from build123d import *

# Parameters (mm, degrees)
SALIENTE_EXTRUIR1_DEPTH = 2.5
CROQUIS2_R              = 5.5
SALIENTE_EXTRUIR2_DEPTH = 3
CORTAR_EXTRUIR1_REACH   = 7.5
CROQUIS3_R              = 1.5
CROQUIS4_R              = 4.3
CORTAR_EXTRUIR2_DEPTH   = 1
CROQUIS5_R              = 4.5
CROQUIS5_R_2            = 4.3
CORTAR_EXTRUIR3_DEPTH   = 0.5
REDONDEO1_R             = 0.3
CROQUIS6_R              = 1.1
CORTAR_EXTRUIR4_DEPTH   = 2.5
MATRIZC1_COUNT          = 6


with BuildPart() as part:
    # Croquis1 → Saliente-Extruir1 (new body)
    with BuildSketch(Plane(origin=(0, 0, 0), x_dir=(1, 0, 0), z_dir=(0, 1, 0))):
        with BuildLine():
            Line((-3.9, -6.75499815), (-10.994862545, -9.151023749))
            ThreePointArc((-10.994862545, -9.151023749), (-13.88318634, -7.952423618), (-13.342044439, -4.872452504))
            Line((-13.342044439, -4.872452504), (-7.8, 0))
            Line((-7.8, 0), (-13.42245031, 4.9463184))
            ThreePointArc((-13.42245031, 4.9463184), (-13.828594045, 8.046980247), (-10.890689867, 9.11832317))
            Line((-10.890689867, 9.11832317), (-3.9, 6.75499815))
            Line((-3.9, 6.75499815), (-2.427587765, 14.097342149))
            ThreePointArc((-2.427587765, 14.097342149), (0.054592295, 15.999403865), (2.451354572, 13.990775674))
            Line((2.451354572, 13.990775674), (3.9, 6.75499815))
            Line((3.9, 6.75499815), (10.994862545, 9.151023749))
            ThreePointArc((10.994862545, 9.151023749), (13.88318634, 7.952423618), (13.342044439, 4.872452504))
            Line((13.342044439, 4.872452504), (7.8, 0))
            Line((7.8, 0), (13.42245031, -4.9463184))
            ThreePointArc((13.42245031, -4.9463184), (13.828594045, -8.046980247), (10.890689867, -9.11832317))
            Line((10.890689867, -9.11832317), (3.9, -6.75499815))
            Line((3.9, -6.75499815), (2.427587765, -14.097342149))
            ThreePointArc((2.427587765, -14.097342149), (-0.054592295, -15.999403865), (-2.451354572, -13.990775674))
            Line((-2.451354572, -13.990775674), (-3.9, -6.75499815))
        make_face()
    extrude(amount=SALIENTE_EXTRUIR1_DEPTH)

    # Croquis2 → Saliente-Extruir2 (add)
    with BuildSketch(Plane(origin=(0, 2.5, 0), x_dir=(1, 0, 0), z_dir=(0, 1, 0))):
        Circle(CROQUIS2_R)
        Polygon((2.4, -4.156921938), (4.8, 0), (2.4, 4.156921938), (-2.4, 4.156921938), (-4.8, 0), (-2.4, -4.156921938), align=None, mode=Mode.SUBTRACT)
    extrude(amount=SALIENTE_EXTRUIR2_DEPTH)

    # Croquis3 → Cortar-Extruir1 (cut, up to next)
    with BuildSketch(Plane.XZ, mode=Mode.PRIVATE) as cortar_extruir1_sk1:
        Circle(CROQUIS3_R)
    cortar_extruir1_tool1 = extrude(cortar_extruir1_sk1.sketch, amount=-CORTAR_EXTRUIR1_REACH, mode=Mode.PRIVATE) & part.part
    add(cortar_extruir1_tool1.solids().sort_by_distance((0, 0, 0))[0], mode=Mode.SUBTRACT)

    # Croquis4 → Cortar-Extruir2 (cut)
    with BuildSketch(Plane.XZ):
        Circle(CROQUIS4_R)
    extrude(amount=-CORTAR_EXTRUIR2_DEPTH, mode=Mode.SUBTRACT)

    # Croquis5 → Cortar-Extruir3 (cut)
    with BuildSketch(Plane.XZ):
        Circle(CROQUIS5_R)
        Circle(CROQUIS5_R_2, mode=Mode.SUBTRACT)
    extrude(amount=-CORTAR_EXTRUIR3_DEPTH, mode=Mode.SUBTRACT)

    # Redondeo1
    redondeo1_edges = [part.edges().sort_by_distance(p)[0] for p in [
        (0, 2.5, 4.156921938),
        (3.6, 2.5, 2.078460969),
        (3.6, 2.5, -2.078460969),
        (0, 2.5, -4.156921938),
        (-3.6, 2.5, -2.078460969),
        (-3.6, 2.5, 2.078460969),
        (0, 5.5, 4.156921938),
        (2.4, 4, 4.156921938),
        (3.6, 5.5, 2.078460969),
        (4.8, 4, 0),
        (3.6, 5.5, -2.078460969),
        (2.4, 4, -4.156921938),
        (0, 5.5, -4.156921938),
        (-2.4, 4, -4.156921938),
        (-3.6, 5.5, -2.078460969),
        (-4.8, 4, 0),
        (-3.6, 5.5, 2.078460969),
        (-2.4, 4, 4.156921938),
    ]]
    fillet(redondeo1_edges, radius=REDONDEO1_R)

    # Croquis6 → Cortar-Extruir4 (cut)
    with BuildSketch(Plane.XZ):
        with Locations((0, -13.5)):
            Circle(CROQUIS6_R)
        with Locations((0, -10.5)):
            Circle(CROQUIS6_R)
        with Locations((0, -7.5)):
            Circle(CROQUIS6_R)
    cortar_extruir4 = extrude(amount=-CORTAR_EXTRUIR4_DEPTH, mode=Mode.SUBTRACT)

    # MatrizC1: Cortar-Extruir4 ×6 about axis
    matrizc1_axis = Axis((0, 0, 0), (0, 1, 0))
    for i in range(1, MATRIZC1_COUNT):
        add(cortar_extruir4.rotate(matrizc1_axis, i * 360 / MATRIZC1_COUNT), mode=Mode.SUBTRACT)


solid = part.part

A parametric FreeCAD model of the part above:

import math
import FreeCAD as App
import Part
import Sketcher
from FreeCAD import Vector
Q = App.Units.Quantity


def edges_at(feature, points):
    """Names of the edges that pass closest to the given points."""
    edges = feature.Shape.Edges
    near = lambda p: min(range(len(edges)), key=lambda i: edges[i].distToShape(Part.Vertex(*p))[0])
    return sorted({f"Edge{near(p) + 1}" for p in points})

doc = App.newDocument("Part")
body = doc.addObject("PartDesign::Body", "Body")

sketch1 = body.newObject("Sketcher::SketchObject", "Sketch")
sketch1.AttachmentSupport = (doc.getObject("XZ_Plane"), [""])
sketch1.MapMode = "FlatFace"
sketch1.addGeometry([
    Part.LineSegment(Vector(-11, 9.2, 0), Vector(-3.9, 6.8, 0)),
    Part.LineSegment(Vector(-3.9, 6.8, 0), Vector(-2.5, 14, 0)),
    Part.ArcOfCircle(Part.Circle(Vector(0, 13.5, 0), Vector(0, 0, 1), 2.5), math.radians(14), math.radians(169)),
    Part.LineSegment(Vector(2.4, 14.1, 0), Vector(3.9, 6.8, 0)),
    Part.LineSegment(Vector(3.9, 6.8, 0), Vector(10.9, 9.1, 0)),
    Part.ArcOfCircle(Part.Circle(Vector(11.7, 6.8, 0), Vector(0, 0, 1), 2.5), math.radians(-46), math.radians(109)),
    Part.LineSegment(Vector(13.4, 4.9, 0), Vector(7.8, 0, 0)),
    Part.LineSegment(Vector(7.8, 0, 0), Vector(13.3, -4.9, 0)),
    Part.ArcOfCircle(Part.Circle(Vector(11.7, -6.8, 0), Vector(0, 0, 1), 2.5), math.radians(-106), math.radians(49)),
    Part.LineSegment(Vector(11, -9.2, 0), Vector(3.9, -6.8, 0)),
    Part.LineSegment(Vector(3.9, -6.8, 0), Vector(2.5, -14, 0)),
    Part.ArcOfCircle(Part.Circle(Vector(0, -13.5, 0), Vector(0, 0, 1), 2.5), math.radians(-166), math.radians(-11)),
    Part.LineSegment(Vector(-2.4, -14.1, 0), Vector(-3.9, -6.8, 0)),
    Part.LineSegment(Vector(-3.9, -6.8, 0), Vector(-10.9, -9.1, 0)),
    Part.ArcOfCircle(Part.Circle(Vector(-11.7, -6.8, 0), Vector(0, 0, 1), 2.5), math.radians(134), math.radians(289)),
    Part.LineSegment(Vector(-13.4, -4.9, 0), Vector(-7.8, 0, 0)),
    Part.LineSegment(Vector(-7.8, 0, 0), Vector(-13.3, 4.9, 0)),
    Part.ArcOfCircle(Part.Circle(Vector(-11.7, 6.8, 0), Vector(0, 0, 1), 2.5), math.radians(74), math.radians(229)),
], False)
sketch1.addConstraint([
    Sketcher.Constraint("Coincident", 0, 2, 1, 1),
    Sketcher.Constraint("Tangent", 1, 2, 2, 2),
    Sketcher.Constraint("Coincident", 2, 1, 3, 1),
    Sketcher.Constraint("Coincident", 3, 2, 4, 1),
    Sketcher.Constraint("Tangent", 4, 2, 5, 2),
    Sketcher.Constraint("Coincident", 5, 1, 6, 1),
    Sketcher.Constraint("Coincident", 6, 2, 7, 1),
    Sketcher.Constraint("Tangent", 7, 2, 8, 2),
    Sketcher.Constraint("Coincident", 8, 1, 9, 1),
    Sketcher.Constraint("Coincident", 9, 2, 10, 1),
    Sketcher.Constraint("Tangent", 10, 2, 11, 2),
    Sketcher.Constraint("Coincident", 11, 1, 12, 1),
    Sketcher.Constraint("Coincident", 12, 2, 13, 1),
    Sketcher.Constraint("Tangent", 13, 2, 14, 2),
    Sketcher.Constraint("Coincident", 14, 1, 15, 1),
    Sketcher.Constraint("Coincident", 15, 2, 16, 1),
    Sketcher.Constraint("Tangent", 16, 2, 17, 2),
    Sketcher.Constraint("Coincident", 17, 1, 0, 1),
    Sketcher.Constraint("Equal", 2, 5),
    Sketcher.Constraint("Equal", 5, 8),
    Sketcher.Constraint("Equal", 8, 11),
    Sketcher.Constraint("Equal", 11, 14),
    Sketcher.Constraint("Equal", 14, 17),
    Sketcher.Constraint("Symmetric", 2, 3, 11, 3, -1, 1),
    Sketcher.Constraint("Symmetric", 5, 3, 14, 3, -1, 1),
    Sketcher.Constraint("Symmetric", 8, 3, 17, 3, -1, 1),
    Sketcher.Constraint("Symmetric", 0, 2, 9, 2, -1, 1),
    Sketcher.Constraint("Symmetric", 3, 2, 12, 2, -1, 1),
    Sketcher.Constraint("Symmetric", 6, 2, 15, 2, -1, 1),
    Sketcher.Constraint("Symmetric", 8, 3, 14, 3, -2),
    Sketcher.Constraint("Symmetric", 0, 2, 3, 2, -2),
    Sketcher.Constraint("PointOnObject", 2, 3, -2),
    Sketcher.Constraint("PointOnObject", 6, 2, -1),
    Sketcher.Constraint("Parallel", 0, 9),
    Sketcher.Constraint("Parallel", 3, 12),
    Sketcher.Constraint("Parallel", 6, 15),
    Sketcher.Constraint("Equal", 0, 3),
    Sketcher.Constraint("Equal", 1, 4),
    Sketcher.Constraint("Equal", 3, 6),
    Sketcher.Constraint("Equal", 4, 7),
    Sketcher.Constraint("Radius", 2, 2.5),
    Sketcher.Constraint("DistanceY", 11, 3, 2, 3, 27.0),
    Sketcher.Constraint("DistanceX", 0, 2, -1, 1, 3.9),
    Sketcher.Constraint("DistanceX", -1, 1, 6, 2, 7.8),
    Sketcher.Constraint("DistanceY", 8, 3, 5, 3, 13.5),
    Sketcher.Constraint("DistanceX", -1, 1, 5, 1, 13.42245),
])
pad1 = body.newObject("PartDesign::Pad", "Pad")
pad1.Profile = sketch1
pad1.Length = 2.5
pad1.Reversed = True

sketch2 = body.newObject("Sketcher::SketchObject", "Sketch001")
sketch2.AttachmentSupport = (doc.getObject("XZ_Plane"), [""])
sketch2.MapMode = "FlatFace"
sketch2.AttachmentOffset = App.Placement(Vector(0, 0, -2.5), App.Rotation())
sketch2.addGeometry([
    Part.Circle(Vector(0, 0, 0), Vector(0, 0, 1), 5.5),
    Part.LineSegment(Vector(4.8, 0, 0), Vector(2.4, 4.2, 0)),
    Part.LineSegment(Vector(2.4, 4.2, 0), Vector(-2.4, 4.2, 0)),
    Part.LineSegment(Vector(-2.4, 4.2, 0), Vector(-4.8, 0, 0)),
    Part.LineSegment(Vector(-4.8, 0, 0), Vector(-2.4, -4.2, 0)),
    Part.LineSegment(Vector(-2.4, -4.2, 0), Vector(2.4, -4.2, 0)),
    Part.LineSegment(Vector(2.4, -4.2, 0), Vector(4.8, 0, 0)),
], False)
sketch2.addConstraint([
    Sketcher.Constraint("Coincident", 1, 2, 2, 1),
    Sketcher.Constraint("Coincident", 2, 2, 3, 1),
    Sketcher.Constraint("Coincident", 3, 2, 4, 1),
    Sketcher.Constraint("Coincident", 4, 2, 5, 1),
    Sketcher.Constraint("Coincident", 5, 2, 6, 1),
    Sketcher.Constraint("Coincident", 6, 2, 1, 1),
    Sketcher.Constraint("Horizontal", 2),
    Sketcher.Constraint("Horizontal", 5),
    Sketcher.Constraint("Coincident", 0, 3, -1, 1),
    Sketcher.Constraint("Symmetric", 1, 2, 4, 2, -1, 1),
    Sketcher.Constraint("Symmetric", 3, 2, 6, 2, -1, 1),
    Sketcher.Constraint("PointOnObject", 3, 2, -1),
    Sketcher.Constraint("Parallel", 3, 6),
    Sketcher.Constraint("Vertical", 2, 2, 4, 2),
    Sketcher.Constraint("Diameter", 0, 11.0),
    Sketcher.Constraint("Angle", 1, Q("120 deg")),
    Sketcher.Constraint("DistanceX", 2, 2, 2, 1, 4.8),
    Sketcher.Constraint("Distance", 1, 4.8),
])
pad2 = body.newObject("PartDesign::Pad", "Pad001")
pad2.Profile = sketch2
pad2.Length = 3
pad2.Reversed = True

sketch3 = body.newObject("Sketcher::SketchObject", "Sketch002")
sketch3.AttachmentSupport = (doc.getObject("XZ_Plane"), [""])
sketch3.MapMode = "FlatFace"
sketch3.addGeometry(Part.Circle(Vector(0, 0, 0), Vector(0, 0, 1), 1.5), False)
sketch3.addConstraint([
    Sketcher.Constraint("Coincident", 0, 3, -1, 1),
    Sketcher.Constraint("Diameter", 0, 3.0),
])
pocket1 = body.newObject("PartDesign::Pocket", "Pocket")
pocket1.Profile = sketch3
pocket1.Type = "UpToFirst"

sketch4 = body.newObject("Sketcher::SketchObject", "Sketch003")
sketch4.AttachmentSupport = (doc.getObject("XZ_Plane"), [""])
sketch4.MapMode = "FlatFace"
sketch4.addGeometry(Part.Circle(Vector(0, 0, 0), Vector(0, 0, 1), 4.3), False)
sketch4.addConstraint([
    Sketcher.Constraint("Coincident", 0, 3, -1, 1),
    Sketcher.Constraint("Diameter", 0, 8.6),
])
pocket2 = body.newObject("PartDesign::Pocket", "Pocket001")
pocket2.Profile = sketch4
pocket2.Length = 1

sketch5 = body.newObject("Sketcher::SketchObject", "Sketch004")
sketch5.AttachmentSupport = (doc.getObject("XZ_Plane"), [""])
sketch5.MapMode = "FlatFace"
sketch5.addGeometry([
    Part.Circle(Vector(0, 0, 0), Vector(0, 0, 1), 4.5),
    Part.Circle(Vector(0, 0, 0), Vector(0, 0, 1), 4.3),
], False)
sketch5.addConstraint([
    Sketcher.Constraint("Coincident", 0, 3, -1, 1),
    Sketcher.Constraint("Coincident", 1, 3, -1, 1),
    Sketcher.Constraint("Diameter", 0, 9.0),
    Sketcher.Constraint("Diameter", 1, 8.6),
])
pocket3 = body.newObject("PartDesign::Pocket", "Pocket002")
pocket3.Profile = sketch5
pocket3.Length = 0.5
doc.recompute()

fillet = body.newObject("PartDesign::Fillet", "Fillet")
fillet.Base = (pocket3, edges_at(pocket3, [
    (0, 2.5, 4.157),
    (3.6, 2.5, 2.078),
    (3.6, 2.5, -2.078),
    (0, 2.5, -4.157),
    (-3.6, 2.5, -2.078),
    (-3.6, 2.5, 2.078),
    (0, 5.5, 4.157),
    (2.4, 4, 4.157),
    (3.6, 5.5, 2.078),
    (4.8, 4, 0),
    (3.6, 5.5, -2.078),
    (2.4, 4, -4.157),
    (0, 5.5, -4.157),
    (-2.4, 4, -4.157),
    (-3.6, 5.5, -2.078),
    (-4.8, 4, 0),
    (-3.6, 5.5, 2.078),
    (-2.4, 4, 4.157),
]))
fillet.Radius = 0.3

sketch6 = body.newObject("Sketcher::SketchObject", "Sketch005")
sketch6.AttachmentSupport = (doc.getObject("XZ_Plane"), [""])
sketch6.MapMode = "FlatFace"
sketch6.addGeometry([
    Part.Circle(Vector(0, -13.5, 0), Vector(0, 0, 1), 1.1),
    Part.Circle(Vector(0, -10.5, 0), Vector(0, 0, 1), 1.1),
    Part.Circle(Vector(0, -7.5, 0), Vector(0, 0, 1), 1.1),
], False)
sketch6.addConstraint([
    Sketcher.Constraint("Equal", 0, 1),
    Sketcher.Constraint("Equal", 1, 2),
    Sketcher.Constraint("PointOnObject", 0, 3, -2),
    Sketcher.Constraint("PointOnObject", 1, 3, -2),
    Sketcher.Constraint("PointOnObject", 2, 3, -2),
    Sketcher.Constraint("Diameter", 0, 2.2),
    Sketcher.Constraint("DistanceY", 0, 3, 1, 3, 3.0),
    Sketcher.Constraint("DistanceY", 1, 3, 2, 3, 3.0),
    Sketcher.Constraint("DistanceY", 0, 3, -1, 1, 13.5),
])
pocket4 = body.newObject("PartDesign::Pocket", "Pocket003")
pocket4.Profile = sketch6
pocket4.Length = 2.5
doc.recompute()

polarpattern = body.newObject("PartDesign::PolarPattern", "PolarPattern")
polarpattern.Originals = [pocket4]
polarpattern.Axis = (doc.getObject("Y_Axis"), [""])
polarpattern.Angle = 360
polarpattern.Occurrences = 6
body.Tip = polarpattern

doc.recompute()
